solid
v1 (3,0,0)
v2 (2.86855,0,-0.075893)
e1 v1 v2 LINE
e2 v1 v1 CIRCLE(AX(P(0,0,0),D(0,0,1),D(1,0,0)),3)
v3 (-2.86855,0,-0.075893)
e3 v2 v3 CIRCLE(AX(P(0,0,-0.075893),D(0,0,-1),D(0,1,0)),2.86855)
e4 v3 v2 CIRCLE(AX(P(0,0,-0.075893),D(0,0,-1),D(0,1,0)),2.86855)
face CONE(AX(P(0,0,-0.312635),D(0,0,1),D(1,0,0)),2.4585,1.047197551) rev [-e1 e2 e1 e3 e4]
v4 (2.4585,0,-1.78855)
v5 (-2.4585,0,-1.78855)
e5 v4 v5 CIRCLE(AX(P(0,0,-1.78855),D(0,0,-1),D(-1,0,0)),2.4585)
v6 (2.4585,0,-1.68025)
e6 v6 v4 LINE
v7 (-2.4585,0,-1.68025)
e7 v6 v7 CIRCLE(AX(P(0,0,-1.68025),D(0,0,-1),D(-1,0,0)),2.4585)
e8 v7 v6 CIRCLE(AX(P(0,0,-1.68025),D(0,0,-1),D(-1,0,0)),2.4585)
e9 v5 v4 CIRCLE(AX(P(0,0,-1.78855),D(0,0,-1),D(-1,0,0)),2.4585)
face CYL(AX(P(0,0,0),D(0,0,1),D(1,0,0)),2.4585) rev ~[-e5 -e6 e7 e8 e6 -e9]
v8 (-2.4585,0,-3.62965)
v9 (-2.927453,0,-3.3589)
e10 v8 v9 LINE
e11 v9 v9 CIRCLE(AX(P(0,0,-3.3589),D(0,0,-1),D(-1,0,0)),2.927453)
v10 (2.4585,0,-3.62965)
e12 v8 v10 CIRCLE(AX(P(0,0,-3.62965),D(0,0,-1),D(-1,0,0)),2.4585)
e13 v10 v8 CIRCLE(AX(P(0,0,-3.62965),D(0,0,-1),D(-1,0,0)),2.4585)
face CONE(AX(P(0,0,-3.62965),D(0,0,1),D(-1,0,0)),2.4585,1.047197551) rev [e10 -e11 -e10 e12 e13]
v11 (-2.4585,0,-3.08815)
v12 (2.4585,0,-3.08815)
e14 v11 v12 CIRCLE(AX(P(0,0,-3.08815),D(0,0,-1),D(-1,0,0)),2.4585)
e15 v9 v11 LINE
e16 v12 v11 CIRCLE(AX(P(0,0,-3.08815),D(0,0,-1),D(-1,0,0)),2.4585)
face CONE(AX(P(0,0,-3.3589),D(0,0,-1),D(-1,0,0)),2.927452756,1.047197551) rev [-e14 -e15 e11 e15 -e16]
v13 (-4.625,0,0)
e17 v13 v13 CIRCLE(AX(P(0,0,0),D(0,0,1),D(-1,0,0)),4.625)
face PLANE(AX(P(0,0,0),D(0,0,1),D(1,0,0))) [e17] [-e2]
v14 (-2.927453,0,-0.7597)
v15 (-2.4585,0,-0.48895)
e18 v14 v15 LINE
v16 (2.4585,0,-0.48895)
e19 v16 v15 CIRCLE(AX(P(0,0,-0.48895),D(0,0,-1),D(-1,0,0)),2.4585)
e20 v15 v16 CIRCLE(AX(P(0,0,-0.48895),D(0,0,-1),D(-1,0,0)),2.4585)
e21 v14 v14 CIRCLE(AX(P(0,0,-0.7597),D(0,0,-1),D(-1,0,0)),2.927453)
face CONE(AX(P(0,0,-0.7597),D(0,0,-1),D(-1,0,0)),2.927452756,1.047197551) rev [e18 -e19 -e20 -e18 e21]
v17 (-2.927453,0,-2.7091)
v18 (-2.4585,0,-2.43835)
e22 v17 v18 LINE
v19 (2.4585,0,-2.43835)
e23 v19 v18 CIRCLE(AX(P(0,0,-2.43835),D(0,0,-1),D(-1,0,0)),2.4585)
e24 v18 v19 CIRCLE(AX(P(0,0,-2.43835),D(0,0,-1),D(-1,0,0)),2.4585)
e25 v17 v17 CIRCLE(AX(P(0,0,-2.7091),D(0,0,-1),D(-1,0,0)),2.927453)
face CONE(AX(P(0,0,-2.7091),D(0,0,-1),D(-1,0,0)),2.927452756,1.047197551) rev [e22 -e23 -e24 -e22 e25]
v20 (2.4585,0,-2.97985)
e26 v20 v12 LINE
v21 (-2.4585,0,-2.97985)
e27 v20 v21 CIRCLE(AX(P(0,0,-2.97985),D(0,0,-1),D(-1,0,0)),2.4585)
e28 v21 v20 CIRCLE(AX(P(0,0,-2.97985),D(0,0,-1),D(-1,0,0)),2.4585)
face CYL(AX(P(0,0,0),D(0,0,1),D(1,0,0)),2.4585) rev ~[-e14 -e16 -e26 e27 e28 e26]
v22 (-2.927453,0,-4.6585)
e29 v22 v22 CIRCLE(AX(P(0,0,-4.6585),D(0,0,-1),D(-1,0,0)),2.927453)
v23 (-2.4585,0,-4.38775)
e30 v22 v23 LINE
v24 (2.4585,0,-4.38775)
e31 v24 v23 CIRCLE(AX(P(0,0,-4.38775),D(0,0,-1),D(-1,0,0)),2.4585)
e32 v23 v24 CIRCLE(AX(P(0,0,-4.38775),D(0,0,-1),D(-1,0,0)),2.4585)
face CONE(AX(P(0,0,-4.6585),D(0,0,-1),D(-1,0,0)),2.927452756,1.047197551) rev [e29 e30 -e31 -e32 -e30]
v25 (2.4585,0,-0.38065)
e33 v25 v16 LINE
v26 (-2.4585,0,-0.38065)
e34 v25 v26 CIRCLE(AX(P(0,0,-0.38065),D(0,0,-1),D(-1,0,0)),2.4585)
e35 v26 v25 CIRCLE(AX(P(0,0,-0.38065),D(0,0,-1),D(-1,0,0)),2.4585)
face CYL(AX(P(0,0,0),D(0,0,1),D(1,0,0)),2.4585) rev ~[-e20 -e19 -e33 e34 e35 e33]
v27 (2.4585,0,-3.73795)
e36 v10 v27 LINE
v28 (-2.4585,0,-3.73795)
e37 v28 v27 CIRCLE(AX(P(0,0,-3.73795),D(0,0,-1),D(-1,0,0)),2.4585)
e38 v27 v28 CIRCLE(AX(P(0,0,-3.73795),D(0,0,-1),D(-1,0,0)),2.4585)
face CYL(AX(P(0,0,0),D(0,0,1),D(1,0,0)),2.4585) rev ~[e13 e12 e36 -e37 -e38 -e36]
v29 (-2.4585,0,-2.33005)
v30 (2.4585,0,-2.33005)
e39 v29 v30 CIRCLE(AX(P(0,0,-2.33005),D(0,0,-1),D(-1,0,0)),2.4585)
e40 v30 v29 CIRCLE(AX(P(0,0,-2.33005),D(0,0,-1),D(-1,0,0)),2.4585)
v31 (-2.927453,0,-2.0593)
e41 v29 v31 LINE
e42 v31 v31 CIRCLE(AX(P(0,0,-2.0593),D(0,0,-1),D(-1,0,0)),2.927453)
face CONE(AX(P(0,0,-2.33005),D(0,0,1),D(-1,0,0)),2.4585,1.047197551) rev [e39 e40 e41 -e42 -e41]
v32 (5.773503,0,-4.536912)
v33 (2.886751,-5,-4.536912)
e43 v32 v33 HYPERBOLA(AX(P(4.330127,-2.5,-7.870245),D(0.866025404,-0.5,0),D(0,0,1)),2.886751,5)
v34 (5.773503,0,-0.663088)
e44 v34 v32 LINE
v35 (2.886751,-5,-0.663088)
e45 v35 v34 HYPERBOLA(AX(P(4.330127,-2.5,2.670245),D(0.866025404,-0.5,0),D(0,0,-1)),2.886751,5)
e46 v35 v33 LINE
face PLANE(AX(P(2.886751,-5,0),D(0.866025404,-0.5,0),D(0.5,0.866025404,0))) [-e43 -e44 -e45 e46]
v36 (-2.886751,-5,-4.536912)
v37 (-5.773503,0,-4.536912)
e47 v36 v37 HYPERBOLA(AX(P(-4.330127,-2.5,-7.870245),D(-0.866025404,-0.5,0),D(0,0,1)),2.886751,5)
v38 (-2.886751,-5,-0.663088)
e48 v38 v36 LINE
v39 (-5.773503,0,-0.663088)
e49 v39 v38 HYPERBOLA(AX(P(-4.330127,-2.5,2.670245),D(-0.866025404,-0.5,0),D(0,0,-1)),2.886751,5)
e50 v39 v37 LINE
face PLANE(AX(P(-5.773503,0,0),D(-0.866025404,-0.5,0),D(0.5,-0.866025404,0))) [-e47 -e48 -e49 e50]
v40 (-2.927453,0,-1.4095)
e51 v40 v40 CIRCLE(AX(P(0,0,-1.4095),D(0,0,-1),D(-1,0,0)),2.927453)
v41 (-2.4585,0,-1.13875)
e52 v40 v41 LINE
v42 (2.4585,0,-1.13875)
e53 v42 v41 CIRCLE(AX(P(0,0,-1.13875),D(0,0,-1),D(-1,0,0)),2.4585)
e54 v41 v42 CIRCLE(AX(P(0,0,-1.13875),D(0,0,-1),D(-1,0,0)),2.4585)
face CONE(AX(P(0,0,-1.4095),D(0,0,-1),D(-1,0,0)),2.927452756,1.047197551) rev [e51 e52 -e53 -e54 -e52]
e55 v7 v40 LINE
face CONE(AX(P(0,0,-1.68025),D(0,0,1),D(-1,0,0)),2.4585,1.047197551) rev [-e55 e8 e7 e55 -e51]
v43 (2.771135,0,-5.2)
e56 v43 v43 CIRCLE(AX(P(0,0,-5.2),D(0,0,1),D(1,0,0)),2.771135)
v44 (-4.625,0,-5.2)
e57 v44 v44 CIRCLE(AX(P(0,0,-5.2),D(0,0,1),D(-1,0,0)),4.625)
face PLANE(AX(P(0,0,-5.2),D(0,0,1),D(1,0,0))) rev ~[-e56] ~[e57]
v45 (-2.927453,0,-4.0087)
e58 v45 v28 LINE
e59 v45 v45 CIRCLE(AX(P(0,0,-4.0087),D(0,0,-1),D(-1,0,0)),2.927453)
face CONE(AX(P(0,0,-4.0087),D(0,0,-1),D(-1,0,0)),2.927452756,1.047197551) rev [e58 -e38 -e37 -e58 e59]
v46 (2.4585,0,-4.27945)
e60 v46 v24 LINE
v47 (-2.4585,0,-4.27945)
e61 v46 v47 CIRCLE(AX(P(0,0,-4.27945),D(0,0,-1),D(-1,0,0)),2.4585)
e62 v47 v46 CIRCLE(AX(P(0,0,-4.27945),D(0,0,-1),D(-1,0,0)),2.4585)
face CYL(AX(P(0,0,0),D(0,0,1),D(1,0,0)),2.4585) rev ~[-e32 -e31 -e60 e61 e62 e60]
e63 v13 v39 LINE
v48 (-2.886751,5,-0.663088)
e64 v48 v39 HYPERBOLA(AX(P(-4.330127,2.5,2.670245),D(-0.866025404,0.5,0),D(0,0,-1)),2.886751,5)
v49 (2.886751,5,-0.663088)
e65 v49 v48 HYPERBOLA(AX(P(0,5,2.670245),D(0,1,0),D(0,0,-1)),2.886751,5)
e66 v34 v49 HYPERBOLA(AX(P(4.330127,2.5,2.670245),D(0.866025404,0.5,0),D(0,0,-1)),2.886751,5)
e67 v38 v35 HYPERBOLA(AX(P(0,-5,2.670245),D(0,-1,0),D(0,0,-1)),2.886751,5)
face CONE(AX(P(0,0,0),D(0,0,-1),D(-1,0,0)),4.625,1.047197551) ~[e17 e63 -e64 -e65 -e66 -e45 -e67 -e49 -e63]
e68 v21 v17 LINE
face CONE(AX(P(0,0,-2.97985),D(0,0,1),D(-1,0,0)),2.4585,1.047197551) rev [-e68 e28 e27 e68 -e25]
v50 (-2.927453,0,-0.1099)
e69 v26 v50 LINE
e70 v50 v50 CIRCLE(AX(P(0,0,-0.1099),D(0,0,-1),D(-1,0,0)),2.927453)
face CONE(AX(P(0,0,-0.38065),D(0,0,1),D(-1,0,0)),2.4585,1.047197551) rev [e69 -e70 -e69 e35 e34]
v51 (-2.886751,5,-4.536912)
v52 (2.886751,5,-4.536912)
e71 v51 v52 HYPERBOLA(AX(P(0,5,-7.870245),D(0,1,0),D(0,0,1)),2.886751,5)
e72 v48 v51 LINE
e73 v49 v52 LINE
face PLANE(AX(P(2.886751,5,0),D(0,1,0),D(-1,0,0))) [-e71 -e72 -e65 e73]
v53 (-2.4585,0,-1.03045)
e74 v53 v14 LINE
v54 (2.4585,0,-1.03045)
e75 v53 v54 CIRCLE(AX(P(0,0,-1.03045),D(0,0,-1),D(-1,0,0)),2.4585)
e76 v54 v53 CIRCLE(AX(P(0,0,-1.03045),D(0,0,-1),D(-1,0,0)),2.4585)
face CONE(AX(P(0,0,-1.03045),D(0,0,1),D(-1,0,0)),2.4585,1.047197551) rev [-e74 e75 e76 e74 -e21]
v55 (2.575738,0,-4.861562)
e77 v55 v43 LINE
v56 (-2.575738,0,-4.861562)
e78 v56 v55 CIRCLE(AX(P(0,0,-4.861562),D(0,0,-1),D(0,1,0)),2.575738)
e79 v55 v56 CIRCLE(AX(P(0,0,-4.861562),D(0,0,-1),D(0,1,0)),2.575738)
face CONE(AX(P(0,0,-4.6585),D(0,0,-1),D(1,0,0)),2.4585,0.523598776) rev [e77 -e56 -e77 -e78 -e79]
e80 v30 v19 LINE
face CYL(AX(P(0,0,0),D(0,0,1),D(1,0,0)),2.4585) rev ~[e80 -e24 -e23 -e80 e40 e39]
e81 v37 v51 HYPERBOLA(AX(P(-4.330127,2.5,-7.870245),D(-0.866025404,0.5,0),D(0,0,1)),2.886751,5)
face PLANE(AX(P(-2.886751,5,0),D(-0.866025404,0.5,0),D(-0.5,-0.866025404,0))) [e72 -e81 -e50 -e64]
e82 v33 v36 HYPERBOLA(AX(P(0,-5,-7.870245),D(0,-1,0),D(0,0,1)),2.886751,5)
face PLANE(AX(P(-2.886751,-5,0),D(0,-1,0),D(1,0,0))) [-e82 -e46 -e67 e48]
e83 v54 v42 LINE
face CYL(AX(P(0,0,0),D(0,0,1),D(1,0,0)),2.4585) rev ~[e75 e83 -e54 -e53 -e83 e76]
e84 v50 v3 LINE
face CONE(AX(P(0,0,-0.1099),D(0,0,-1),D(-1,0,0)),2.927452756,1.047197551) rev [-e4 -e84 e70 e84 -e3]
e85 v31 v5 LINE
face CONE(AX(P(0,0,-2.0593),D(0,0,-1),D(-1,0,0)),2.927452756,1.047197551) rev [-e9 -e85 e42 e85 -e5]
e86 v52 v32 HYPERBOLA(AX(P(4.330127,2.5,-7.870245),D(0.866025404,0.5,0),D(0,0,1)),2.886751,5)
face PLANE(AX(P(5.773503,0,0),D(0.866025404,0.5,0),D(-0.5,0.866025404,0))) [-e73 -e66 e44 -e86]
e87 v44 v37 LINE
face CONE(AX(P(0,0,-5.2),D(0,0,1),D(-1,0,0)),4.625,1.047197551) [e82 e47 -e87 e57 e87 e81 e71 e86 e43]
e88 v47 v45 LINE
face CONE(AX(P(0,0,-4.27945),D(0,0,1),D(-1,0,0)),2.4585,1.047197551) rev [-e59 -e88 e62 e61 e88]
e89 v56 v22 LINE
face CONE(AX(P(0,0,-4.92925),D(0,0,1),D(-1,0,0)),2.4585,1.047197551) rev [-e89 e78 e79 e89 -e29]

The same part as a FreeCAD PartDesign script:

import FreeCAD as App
import Part
import Sketcher
Q = App.Units.Quantity


def edges_at(feature, points):
    """Names of the edges that pass closest to the given points."""
    edges = feature.Shape.Edges
    near = lambda p: min(range(len(edges)), key=lambda i: edges[i].distToShape(Part.Vertex(*p))[0])
    return sorted({f"Edge{near(p) + 1}" for p in points})

doc = App.newDocument("Part")
body = doc.addObject("PartDesign::Body", "Body")

sketch1 = body.newObject("Sketcher::SketchObject", "Sketch")
sketch1.AttachmentSupport = (doc.getObject("XY_Plane"), [""])
sketch1.MapMode = "FlatFace"
sketch1.addGeometry(Part.LineSegment(App.Vector(5.773503, 0, 0), App.Vector(2.886751, 5, 0)), False)
sketch1.addGeometry(Part.LineSegment(App.Vector(2.886751, 5, 0), App.Vector(-2.886751, 5, 0)), False)
sketch1.addGeometry(Part.LineSegment(App.Vector(-2.886751, 5, 0), App.Vector(-5.773503, 0, 0)), False)
sketch1.addGeometry(Part.LineSegment(App.Vector(-5.773503, 0, 0), App.Vector(-2.886751, -5, 0)), False)
sketch1.addGeometry(Part.LineSegment(App.Vector(-2.886751, -5, 0), App.Vector(2.886751, -5, 0)), False)
sketch1.addGeometry(Part.LineSegment(App.Vector(2.886751, -5, 0), App.Vector(5.773503, 0, 0)), False)
sketch1.addGeometry(Part.Circle(App.Vector(0, 0, 0), App.Vector(0, 0, 1), 2.4585), False)
sketch1.addConstraint(Sketcher.Constraint("Coincident", 0, 2, 1, 1))
sketch1.addConstraint(Sketcher.Constraint("Coincident", 1, 2, 2, 1))
sketch1.addConstraint(Sketcher.Constraint("Coincident", 2, 2, 3, 1))
sketch1.addConstraint(Sketcher.Constraint("Coincident", 3, 2, 4, 1))
sketch1.addConstraint(Sketcher.Constraint("Coincident", 4, 2, 5, 1))
sketch1.addConstraint(Sketcher.Constraint("Coincident", 5, 2, 0, 1))
sketch1.addConstraint(Sketcher.Constraint("Horizontal", 1))
sketch1.addConstraint(Sketcher.Constraint("Horizontal", 4))
sketch1.addConstraint(Sketcher.Constraint("Coincident", 6, 3, -1, 1))
sketch1.addConstraint(Sketcher.Constraint("Symmetric", 0, 2, 3, 2, -1, 1))
sketch1.addConstraint(Sketcher.Constraint("Symmetric", 2, 2, 5, 2, -1, 1))
sketch1.addConstraint(Sketcher.Constraint("PointOnObject", 2, 2, -1))
sketch1.addConstraint(Sketcher.Constraint("Parallel", 2, 5))
sketch1.addConstraint(Sketcher.Constraint("Vertical", 1, 2, 3, 2))
sketch1.addConstraint(Sketcher.Constraint("Angle", 0, Q("120 deg")))
sketch1.addConstraint(Sketcher.Constraint("Diameter", 6, Q("4.917 mm")))
sketch1.addConstraint(Sketcher.Constraint("DistanceY", -1, 1, 0, 2, Q("5 mm")))
sketch1.addConstraint(Sketcher.Constraint("DistanceX", 1, 2, 1, 1, Q("5.773503 mm")))
pad1 = body.newObject("PartDesign::Pad", "Pad")
pad1.Profile = sketch1
pad1.Length = 5.2
pad1.Reversed = True

sketch2 = body.newObject("Sketcher::SketchObject", "Sketch001")
sketch2.AttachmentSupport = (doc.getObject("XZ_Plane"), [""])
sketch2.MapMode = "FlatFace"
sketch2.addGeometry(Part.LineSegment(App.Vector(-4.625, -5.2, 0), App.Vector(-5.773503, -5.2, 0)), False)
sketch2.addGeometry(Part.LineSegment(App.Vector(-5.773503, -5.2, 0), App.Vector(-5.773503, -4.536912, 0)), False)
sketch2.addGeometry(Part.LineSegment(App.Vector(-5.773503, -4.536912, 0), App.Vector(-4.625, -5.2, 0)), False)
sketch2.addGeometry(Part.LineSegment(App.Vector(-5.773503, -0.663088, 0), App.Vector(-5.773503, 0, 0)), False)
sketch2.addGeometry(Part.LineSegment(App.Vector(-5.773503, 0, 0), App.Vector(-4.625, 0, 0)), False)
sketch2.addGeometry(Part.LineSegment(App.Vector(-4.625, 0, 0), App.Vector(-5.773503, -0.663088, 0)), False)
sketch2.addConstraint(Sketcher.Constraint("Coincident", 0, 2, 1, 1))
sketch2.addConstraint(Sketcher.Constraint("Coincident", 1, 2, 2, 1))
sketch2.addConstraint(Sketcher.Constraint("Coincident", 2, 2, 0, 1))
sketch2.addConstraint(Sketcher.Constraint("Coincident", 3, 2, 4, 1))
sketch2.addConstraint(Sketcher.Constraint("Coincident", 4, 2, 5, 1))
sketch2.addConstraint(Sketcher.Constraint("Coincident", 5, 2, 3, 1))
sketch2.addConstraint(Sketcher.Constraint("Horizontal", 0))
sketch2.addConstraint(Sketcher.Constraint("Vertical", 1))
sketch2.addConstraint(Sketcher.Constraint("Vertical", 3))
sketch2.addConstraint(Sketcher.Constraint("Horizontal", 4))
sketch2.addConstraint(Sketcher.Constraint("PointOnObject", 3, 2, -1))
sketch2.addConstraint(Sketcher.Constraint("Vertical", 1, 2, 3, 2))
sketch2.addConstraint(Sketcher.Constraint("Vertical", 2, 2, 4, 2))
sketch2.addConstraint(Sketcher.Constraint("Equal", 1, 3))
sketch2.addConstraint(Sketcher.Constraint("Angle", 2, Q("-30 deg")))
sketch2.addConstraint(Sketcher.Constraint("DistanceY", 0, 2, -1, 1, Q("5.2 mm")))
sketch2.addConstraint(Sketcher.Constraint("DistanceX", 2, 2, -1, 1, Q("4.625 mm")))
sketch2.addConstraint(Sketcher.Constraint("DistanceY", 1, 1, 1, 2, Q("0.663088 mm")))
groove = body.newObject("PartDesign::Groove", "Groove")
groove.Profile = sketch2
groove.ReferenceAxis = (sketch2, ["V_Axis"])
groove.Angle = 360
doc.recompute()

chamfer = body.newObject("PartDesign::Chamfer", "Chamfer")
chamfer.Base = (groove, edges_at(groove, [(-2.458, 0, -5.2)]))
chamfer.ChamferType = "Two distances"
chamfer.Size = 0.5415
chamfer.Size2 = 0.312635
chamfer.FlipDirection = True
doc.recompute()

chamfer2 = body.newObject("PartDesign::Chamfer", "Chamfer001")
chamfer2.Base = (chamfer, edges_at(chamfer, [(-2.458, 0, 0)]))
chamfer2.ChamferType = "Two distances"
chamfer2.Size = 0.5415
chamfer2.Size2 = 0.312635
chamfer2.FlipDirection = True

sketch3 = body.newObject("Sketcher::SketchObject", "Sketch002")
sketch3.AttachmentSupport = (doc.getObject("XZ_Plane"), [""])
sketch3.MapMode = "FlatFace"
sketch3.addGeometry(Part.LineSegment(App.Vector(-2.927453, -4.6585, 0), App.Vector(-2.4585, -4.38775, 0)), False)
sketch3.addGeometry(Part.LineSegment(App.Vector(-2.4585, -4.38775, 0), App.Vector(-1.917, -4.38775, 0)), False)
sketch3.addGeometry(Part.LineSegment(App.Vector(-1.917, -4.38775, 0), App.Vector(-1.917, -4.92925, 0)), False)
sketch3.addGeometry(Part.LineSegment(App.Vector(-1.917, -4.92925, 0), App.Vector(-2.4585, -4.92925, 0)), False)
sketch3.addGeometry(Part.LineSegment(App.Vector(-2.4585, -4.92925, 0), App.Vector(-2.927453, -4.6585, 0)), False)
sketch3.addConstraint(Sketcher.Constraint("Coincident", 0, 2, 1, 1))
sketch3.addConstraint(Sketcher.Constraint("Coincident", 1, 2, 2, 1))
sketch3.addConstraint(Sketcher.Constraint("Coincident", 2, 2, 3, 1))
sketch3.addConstraint(Sketcher.Constraint("Coincident", 3, 2, 4, 1))
sketch3.addConstraint(Sketcher.Constraint("Coincident", 4, 2, 0, 1))
sketch3.addConstraint(Sketcher.Constraint("Horizontal", 1))
sketch3.addConstraint(Sketcher.Constraint("Vertical", 2))
sketch3.addConstraint(Sketcher.Constraint("Horizontal", 3))
sketch3.addConstraint(Sketcher.Constraint("Vertical", 0, 2, 3, 2))
sketch3.addConstraint(Sketcher.Constraint("Equal", 3, 2))
sketch3.addConstraint(Sketcher.Constraint("Equal", 0, 4))
sketch3.addConstraint(Sketcher.Constraint("Angle", 0, Q("30 deg")))
sketch3.addConstraint(Sketcher.Constraint("DistanceX", 1, 1, 1, 2, Q("0.5415 mm")))
sketch3.addConstraint(Sketcher.Constraint("DistanceX", 1, 2, -1, 1, Q("1.917 mm")))
sketch3.addConstraint(Sketcher.Constraint("DistanceY", 4, 2, -1, 1, Q("4.6585 mm")))
groove2 = body.newObject("PartDesign::Groove", "Groove001")
groove2.Profile = sketch3
groove2.ReferenceAxis = (sketch3, ["V_Axis"])
groove2.Angle = 360
doc.recompute()

linearpattern = body.newObject("PartDesign::LinearPattern", "LinearPattern")
linearpattern.Originals = [groove2]
linearpattern.Direction = (doc.getObject("Z_Axis"), [""])
linearpattern.Mode = "offset"
linearpattern.Offset = 0.6498
linearpattern.Occurrences = 8
body.Tip = linearpattern

doc.recompute()
